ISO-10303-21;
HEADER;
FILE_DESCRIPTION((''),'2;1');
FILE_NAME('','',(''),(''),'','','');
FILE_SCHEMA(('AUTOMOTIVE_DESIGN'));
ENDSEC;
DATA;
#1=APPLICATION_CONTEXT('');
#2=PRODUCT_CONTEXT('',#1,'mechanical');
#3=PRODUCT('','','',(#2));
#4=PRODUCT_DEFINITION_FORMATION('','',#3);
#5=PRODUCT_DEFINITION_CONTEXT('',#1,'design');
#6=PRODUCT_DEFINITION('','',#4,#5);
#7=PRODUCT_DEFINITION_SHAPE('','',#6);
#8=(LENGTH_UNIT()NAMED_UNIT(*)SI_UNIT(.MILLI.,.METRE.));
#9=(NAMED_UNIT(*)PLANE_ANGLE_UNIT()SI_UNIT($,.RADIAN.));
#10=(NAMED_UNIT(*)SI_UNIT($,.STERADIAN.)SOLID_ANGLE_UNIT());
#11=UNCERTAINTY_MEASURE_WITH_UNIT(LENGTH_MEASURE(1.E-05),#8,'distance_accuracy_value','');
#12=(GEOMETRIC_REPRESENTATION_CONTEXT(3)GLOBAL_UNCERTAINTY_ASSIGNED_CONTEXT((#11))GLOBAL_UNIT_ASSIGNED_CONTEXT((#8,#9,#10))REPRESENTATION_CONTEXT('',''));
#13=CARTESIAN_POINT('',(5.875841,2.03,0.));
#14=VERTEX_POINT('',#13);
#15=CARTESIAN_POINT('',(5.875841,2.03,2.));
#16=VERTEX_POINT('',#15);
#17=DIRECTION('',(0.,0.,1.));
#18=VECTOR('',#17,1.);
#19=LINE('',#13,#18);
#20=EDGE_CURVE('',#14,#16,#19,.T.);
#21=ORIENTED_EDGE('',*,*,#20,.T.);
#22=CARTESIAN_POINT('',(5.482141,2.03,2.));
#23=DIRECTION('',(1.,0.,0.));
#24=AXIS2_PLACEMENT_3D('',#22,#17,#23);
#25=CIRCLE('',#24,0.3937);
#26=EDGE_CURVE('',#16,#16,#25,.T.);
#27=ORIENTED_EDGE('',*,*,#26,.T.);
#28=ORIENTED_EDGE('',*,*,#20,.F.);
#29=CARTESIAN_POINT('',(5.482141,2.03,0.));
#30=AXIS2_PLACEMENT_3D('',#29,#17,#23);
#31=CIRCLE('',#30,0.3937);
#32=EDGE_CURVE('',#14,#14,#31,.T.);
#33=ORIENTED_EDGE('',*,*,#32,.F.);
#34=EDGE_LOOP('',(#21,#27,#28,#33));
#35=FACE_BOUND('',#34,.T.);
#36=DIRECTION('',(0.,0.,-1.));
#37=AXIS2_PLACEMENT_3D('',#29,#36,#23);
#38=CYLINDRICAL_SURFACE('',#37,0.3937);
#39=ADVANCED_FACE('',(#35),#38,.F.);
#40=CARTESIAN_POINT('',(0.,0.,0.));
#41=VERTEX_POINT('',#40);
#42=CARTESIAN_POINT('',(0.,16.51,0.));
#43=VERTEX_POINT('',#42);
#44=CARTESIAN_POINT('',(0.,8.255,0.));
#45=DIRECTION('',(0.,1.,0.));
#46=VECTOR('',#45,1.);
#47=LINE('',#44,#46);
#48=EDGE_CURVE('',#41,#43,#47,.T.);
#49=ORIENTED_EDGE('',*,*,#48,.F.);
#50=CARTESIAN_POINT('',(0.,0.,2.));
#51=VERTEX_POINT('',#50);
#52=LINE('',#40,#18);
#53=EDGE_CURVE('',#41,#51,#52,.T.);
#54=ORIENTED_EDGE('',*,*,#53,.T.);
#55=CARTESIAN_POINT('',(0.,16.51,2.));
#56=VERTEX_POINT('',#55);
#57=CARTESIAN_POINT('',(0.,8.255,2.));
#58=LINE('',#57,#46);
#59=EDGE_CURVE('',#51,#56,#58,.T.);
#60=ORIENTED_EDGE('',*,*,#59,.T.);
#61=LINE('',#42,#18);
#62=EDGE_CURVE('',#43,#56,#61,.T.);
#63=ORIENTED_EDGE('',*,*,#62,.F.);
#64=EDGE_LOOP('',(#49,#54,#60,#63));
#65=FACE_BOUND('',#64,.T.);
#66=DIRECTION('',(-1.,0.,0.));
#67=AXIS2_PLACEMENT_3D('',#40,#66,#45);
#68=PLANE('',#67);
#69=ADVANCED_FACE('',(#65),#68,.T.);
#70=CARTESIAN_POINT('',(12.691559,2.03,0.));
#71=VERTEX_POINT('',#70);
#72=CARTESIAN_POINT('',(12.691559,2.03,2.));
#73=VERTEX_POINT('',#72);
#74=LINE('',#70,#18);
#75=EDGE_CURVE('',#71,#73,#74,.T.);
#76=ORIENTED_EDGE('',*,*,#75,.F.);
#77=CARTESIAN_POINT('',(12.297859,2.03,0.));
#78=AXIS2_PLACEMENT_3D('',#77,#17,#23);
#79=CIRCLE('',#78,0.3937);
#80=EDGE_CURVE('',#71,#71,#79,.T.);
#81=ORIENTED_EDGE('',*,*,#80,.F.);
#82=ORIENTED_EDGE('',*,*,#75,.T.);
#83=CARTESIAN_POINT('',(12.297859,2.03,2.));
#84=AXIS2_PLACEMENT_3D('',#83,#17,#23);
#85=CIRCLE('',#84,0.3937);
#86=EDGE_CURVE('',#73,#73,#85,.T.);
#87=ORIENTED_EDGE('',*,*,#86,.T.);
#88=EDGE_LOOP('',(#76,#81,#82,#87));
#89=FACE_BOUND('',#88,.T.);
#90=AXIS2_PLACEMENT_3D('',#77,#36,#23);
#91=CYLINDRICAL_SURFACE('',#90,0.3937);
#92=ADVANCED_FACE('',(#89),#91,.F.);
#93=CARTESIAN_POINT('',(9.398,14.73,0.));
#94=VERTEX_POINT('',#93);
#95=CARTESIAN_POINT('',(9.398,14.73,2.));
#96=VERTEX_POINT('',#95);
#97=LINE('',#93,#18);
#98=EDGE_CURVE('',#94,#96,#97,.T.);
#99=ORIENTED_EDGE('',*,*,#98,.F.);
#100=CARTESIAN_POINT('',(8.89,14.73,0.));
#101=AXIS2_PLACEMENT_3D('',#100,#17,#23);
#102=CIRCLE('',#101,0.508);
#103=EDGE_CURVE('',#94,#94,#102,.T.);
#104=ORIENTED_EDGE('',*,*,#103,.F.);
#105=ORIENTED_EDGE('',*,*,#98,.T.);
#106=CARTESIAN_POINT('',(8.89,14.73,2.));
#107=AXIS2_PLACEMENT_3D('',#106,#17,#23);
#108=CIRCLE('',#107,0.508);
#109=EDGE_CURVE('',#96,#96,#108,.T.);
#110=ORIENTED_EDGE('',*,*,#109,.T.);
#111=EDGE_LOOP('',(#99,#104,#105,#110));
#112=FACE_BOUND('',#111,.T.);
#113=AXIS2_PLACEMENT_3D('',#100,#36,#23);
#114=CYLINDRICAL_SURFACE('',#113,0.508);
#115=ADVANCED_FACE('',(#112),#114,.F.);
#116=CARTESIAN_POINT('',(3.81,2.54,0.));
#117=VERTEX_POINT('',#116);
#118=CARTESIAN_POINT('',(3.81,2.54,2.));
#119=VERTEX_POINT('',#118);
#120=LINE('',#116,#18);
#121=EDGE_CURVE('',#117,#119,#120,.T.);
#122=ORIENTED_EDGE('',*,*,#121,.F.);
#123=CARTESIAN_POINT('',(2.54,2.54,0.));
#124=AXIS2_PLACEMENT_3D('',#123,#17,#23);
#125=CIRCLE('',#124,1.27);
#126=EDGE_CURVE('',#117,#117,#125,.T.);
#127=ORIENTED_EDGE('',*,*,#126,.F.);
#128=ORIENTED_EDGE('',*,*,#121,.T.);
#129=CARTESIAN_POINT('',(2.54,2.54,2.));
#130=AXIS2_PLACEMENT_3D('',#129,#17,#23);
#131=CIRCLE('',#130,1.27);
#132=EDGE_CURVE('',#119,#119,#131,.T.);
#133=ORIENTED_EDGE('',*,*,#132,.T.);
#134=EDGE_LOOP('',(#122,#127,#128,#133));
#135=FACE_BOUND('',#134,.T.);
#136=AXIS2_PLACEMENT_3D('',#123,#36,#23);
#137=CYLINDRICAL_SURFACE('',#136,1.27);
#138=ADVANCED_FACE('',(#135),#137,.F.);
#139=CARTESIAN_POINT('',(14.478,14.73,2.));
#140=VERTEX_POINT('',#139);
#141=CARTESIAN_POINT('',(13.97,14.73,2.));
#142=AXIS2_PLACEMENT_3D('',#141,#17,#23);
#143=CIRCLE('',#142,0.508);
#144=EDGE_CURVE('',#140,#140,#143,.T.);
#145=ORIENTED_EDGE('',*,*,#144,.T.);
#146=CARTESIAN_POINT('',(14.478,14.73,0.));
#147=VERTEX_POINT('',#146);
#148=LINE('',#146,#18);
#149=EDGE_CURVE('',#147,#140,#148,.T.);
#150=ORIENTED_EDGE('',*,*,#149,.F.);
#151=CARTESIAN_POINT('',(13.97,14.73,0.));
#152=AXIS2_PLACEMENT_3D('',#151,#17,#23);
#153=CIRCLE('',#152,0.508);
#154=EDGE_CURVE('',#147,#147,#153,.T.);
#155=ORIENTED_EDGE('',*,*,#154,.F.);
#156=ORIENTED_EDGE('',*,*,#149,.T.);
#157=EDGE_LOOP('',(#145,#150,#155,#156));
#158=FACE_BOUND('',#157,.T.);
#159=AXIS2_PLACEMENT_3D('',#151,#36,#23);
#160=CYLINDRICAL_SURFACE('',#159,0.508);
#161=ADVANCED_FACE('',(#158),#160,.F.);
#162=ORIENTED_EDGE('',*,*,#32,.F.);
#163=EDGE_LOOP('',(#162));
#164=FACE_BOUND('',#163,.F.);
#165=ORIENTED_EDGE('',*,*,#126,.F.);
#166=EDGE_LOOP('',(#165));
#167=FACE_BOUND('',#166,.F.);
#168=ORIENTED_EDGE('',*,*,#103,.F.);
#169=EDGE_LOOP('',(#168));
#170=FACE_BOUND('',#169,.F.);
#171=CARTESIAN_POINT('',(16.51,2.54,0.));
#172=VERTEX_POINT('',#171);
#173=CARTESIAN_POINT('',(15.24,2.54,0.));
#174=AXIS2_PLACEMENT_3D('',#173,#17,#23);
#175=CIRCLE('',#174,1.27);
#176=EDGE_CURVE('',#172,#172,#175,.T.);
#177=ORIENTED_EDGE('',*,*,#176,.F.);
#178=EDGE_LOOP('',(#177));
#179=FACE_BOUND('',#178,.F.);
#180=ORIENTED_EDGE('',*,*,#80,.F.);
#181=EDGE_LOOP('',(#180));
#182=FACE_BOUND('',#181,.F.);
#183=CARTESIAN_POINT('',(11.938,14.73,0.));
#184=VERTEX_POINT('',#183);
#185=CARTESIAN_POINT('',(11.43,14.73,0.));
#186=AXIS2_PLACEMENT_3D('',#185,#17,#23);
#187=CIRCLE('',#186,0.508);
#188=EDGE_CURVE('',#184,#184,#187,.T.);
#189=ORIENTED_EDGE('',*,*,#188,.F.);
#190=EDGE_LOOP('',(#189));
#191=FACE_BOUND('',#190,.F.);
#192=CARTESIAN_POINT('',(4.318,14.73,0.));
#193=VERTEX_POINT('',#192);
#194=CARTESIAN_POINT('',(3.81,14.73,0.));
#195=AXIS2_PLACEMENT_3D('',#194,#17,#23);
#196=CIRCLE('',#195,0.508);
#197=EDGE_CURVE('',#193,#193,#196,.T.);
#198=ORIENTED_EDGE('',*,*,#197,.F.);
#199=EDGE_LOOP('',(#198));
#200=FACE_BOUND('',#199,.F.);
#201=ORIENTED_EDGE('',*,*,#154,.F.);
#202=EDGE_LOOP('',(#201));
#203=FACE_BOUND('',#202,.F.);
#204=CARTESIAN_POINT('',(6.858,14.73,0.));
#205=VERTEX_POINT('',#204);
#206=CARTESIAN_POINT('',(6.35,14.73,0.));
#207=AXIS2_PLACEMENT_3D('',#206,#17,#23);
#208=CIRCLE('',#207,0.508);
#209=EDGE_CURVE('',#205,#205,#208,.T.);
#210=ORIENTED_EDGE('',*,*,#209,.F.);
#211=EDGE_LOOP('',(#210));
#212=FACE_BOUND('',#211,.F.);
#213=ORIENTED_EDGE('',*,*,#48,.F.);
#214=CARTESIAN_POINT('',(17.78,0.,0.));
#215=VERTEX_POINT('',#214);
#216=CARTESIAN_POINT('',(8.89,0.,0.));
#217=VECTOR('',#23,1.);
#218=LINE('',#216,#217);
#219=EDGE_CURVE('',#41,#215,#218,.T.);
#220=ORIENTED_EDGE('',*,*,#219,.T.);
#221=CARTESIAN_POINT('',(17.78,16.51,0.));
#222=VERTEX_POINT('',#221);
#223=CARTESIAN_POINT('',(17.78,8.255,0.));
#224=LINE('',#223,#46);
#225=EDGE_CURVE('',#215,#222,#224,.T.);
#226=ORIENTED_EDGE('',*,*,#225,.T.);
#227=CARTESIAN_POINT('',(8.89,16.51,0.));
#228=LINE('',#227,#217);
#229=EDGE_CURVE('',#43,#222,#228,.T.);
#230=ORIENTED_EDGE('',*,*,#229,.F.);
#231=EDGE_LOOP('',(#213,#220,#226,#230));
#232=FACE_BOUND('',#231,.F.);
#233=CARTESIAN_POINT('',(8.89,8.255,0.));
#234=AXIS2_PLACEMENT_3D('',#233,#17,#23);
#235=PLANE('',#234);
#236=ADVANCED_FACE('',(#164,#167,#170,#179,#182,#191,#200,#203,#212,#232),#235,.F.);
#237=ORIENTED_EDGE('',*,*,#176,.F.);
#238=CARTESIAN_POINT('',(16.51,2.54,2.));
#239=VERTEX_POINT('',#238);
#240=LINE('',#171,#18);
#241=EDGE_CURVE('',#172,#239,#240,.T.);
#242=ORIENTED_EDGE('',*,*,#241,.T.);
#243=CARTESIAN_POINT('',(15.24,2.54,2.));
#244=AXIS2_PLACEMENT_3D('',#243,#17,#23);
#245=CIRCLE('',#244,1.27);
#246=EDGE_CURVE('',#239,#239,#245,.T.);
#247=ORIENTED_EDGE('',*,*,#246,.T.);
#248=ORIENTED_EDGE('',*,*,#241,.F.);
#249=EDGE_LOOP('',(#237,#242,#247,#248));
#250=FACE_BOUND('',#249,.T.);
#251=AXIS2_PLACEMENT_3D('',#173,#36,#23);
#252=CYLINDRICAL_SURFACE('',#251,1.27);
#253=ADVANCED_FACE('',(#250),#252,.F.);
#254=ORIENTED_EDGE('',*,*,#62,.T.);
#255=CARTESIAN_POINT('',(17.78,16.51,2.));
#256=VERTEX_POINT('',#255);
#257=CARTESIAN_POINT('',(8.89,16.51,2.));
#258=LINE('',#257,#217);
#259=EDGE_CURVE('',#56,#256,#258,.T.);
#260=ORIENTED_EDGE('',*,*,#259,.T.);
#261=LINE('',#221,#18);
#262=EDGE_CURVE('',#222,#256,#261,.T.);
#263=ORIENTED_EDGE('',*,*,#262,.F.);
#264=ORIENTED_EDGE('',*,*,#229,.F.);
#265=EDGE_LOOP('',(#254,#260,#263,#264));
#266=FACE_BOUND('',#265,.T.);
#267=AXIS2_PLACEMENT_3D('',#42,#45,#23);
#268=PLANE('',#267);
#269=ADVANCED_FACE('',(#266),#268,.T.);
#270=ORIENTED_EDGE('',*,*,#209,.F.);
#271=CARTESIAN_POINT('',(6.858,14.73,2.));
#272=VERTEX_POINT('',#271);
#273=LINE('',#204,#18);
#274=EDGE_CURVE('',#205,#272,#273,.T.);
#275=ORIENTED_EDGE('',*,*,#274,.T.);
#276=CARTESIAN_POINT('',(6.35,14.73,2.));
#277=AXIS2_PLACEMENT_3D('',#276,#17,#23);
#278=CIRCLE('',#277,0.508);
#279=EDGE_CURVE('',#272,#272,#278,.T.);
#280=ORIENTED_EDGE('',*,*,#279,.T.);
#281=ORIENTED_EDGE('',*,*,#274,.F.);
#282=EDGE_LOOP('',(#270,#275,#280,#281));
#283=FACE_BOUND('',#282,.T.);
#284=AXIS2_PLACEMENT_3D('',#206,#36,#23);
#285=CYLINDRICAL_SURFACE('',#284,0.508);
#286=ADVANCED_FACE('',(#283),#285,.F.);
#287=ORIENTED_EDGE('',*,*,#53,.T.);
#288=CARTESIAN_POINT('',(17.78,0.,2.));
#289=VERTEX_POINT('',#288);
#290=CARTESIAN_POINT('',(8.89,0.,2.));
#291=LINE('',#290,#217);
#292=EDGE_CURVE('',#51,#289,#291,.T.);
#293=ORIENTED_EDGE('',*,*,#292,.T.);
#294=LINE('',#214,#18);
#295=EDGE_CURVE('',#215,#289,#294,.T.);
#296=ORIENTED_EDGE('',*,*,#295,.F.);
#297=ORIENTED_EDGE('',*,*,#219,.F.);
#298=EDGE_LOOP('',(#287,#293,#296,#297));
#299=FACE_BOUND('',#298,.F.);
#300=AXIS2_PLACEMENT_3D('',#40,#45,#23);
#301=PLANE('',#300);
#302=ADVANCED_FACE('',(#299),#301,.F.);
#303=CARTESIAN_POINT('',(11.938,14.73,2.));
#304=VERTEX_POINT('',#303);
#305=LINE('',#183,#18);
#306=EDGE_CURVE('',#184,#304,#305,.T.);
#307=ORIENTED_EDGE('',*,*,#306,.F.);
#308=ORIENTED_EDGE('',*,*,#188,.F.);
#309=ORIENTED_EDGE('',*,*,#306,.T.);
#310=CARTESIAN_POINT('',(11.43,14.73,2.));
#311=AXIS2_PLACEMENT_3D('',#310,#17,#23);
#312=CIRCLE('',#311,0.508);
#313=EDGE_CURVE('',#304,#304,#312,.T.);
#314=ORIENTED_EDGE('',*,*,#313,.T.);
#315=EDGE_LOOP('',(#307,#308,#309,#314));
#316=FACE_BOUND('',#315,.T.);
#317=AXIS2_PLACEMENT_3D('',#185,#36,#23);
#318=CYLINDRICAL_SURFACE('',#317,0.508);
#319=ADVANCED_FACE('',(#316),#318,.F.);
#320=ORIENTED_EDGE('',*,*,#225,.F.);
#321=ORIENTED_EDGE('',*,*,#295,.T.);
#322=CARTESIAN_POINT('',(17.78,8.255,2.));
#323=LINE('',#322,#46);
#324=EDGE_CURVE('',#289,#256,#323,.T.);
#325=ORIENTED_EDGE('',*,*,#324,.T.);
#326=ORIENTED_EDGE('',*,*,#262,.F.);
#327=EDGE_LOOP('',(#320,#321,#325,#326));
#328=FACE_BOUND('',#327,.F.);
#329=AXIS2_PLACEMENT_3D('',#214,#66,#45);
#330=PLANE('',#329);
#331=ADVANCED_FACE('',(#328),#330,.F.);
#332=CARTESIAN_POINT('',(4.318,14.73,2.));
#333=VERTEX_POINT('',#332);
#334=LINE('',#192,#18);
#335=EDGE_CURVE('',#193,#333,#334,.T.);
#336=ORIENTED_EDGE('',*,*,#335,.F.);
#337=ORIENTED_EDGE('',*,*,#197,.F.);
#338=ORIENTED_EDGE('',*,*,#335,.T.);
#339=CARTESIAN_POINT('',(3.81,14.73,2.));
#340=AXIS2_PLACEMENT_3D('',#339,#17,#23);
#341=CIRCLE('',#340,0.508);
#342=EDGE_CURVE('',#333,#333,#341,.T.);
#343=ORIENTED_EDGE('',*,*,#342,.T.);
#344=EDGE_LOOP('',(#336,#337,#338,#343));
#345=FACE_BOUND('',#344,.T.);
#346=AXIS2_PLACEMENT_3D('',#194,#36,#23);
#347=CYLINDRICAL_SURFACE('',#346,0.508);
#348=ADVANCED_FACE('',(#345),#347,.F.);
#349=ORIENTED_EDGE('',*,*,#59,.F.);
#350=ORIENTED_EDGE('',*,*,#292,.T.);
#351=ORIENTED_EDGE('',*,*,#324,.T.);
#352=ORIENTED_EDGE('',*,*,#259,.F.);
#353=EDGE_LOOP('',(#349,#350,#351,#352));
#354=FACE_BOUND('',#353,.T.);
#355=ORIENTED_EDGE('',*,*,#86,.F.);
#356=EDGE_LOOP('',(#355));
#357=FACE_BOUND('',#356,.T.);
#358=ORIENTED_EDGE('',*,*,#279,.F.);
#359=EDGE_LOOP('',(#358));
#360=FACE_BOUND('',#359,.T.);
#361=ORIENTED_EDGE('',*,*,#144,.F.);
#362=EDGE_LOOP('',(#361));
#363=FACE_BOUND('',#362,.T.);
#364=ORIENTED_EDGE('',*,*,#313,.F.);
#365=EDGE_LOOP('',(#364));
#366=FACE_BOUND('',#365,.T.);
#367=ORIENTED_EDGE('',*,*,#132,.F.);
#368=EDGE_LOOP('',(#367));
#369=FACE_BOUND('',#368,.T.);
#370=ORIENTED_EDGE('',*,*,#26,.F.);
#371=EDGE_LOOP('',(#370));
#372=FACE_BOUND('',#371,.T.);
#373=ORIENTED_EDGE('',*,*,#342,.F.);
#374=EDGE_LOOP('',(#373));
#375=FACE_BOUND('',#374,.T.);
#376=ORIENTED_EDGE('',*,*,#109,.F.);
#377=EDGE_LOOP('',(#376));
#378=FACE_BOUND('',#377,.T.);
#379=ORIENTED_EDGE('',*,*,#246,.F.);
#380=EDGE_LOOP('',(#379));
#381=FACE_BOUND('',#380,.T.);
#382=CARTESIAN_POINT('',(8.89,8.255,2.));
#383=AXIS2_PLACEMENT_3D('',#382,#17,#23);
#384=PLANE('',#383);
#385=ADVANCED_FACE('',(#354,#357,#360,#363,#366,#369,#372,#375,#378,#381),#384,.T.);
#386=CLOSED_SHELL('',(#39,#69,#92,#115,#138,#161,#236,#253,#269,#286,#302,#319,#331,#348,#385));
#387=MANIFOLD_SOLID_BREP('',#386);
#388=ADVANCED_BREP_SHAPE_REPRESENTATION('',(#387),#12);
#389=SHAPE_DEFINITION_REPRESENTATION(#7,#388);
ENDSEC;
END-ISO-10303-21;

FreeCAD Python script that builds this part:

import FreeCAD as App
import Part
import Sketcher
from FreeCAD import Vector
Q = App.Units.Quantity

doc = App.newDocument("Part")
body = doc.addObject("PartDesign::Body", "Body")

sketch1 = body.newObject("Sketcher::SketchObject", "Sketch")
sketch1.AttachmentSupport = (doc.getObject("XY_Plane"), [""])
sketch1.MapMode = "FlatFace"
sketch1.addGeometry([
    Part.LineSegment(Vector(0, 16.51, 0), Vector(0, 0, 0)),
    Part.LineSegment(Vector(0, 0, 0), Vector(17.78, 0, 0)),
    Part.LineSegment(Vector(17.78, 0, 0), Vector(17.78, 16.51, 0)),
    Part.LineSegment(Vector(17.78, 16.51, 0), Vector(0, 16.51, 0)),
    Part.Circle(Vector(2.54, 2.54, 0), Vector(0, 0, 1), 1.27),
    Part.Circle(Vector(5.482141, 2.03, 0), Vector(0, 0, 1), 0.3937),
    Part.Circle(Vector(12.297859, 2.03, 0), Vector(0, 0, 1), 0.3937),
    Part.Circle(Vector(15.24, 2.54, 0), Vector(0, 0, 1), 1.27),
    Part.Circle(Vector(3.81, 14.73, 0), Vector(0, 0, 1), 0.508),
    Part.Circle(Vector(6.35, 14.73, 0), Vector(0, 0, 1), 0.508),
    Part.Circle(Vector(8.89, 14.73, 0), Vector(0, 0, 1), 0.508),
    Part.Circle(Vector(11.43, 14.73, 0), Vector(0, 0, 1), 0.508),
    Part.Circle(Vector(13.97, 14.73, 0), Vector(0, 0, 1), 0.508),
], False)
sketch1.addConstraint([
    Sketcher.Constraint("Coincident", 0, 2, 1, 1),
    Sketcher.Constraint("Coincident", 1, 2, 2, 1),
    Sketcher.Constraint("Coincident", 2, 2, 3, 1),
    Sketcher.Constraint("Coincident", 3, 2, 0, 1),
    Sketcher.Constraint("Vertical", 0),
    Sketcher.Constraint("Horizontal", 1),
    Sketcher.Constraint("Vertical", 2),
    Sketcher.Constraint("Horizontal", 3),
    Sketcher.Constraint("Coincident", 0, 2, -1, 1),
    Sketcher.Constraint("Equal", 5, 6),
    Sketcher.Constraint("Equal", 4, 7),
    Sketcher.Constraint("Equal", 8, 9),
    Sketcher.Constraint("Equal", 9, 10),
    Sketcher.Constraint("Equal", 10, 11),
    Sketcher.Constraint("Equal", 11, 12),
    Sketcher.Constraint("Horizontal", 5, 3, 6, 3),
    Sketcher.Constraint("Horizontal", 4, 3, 7, 3),
    Sketcher.Constraint("Horizontal", 8, 3, 9, 3),
    Sketcher.Constraint("Horizontal", 9, 3, 10, 3),
    Sketcher.Constraint("Horizontal", 10, 3, 11, 3),
    Sketcher.Constraint("Horizontal", 11, 3, 12, 3),
    Sketcher.Constraint("Diameter", 4, Q("0.1 in")),
    Sketcher.Constraint("Diameter", 8, Q("0.04 in")),
    Sketcher.Constraint("Diameter", 5, Q("0.031 in")),
    Sketcher.Constraint("DistanceX", 1, 1, 1, 2, Q("0.7 in")),
    Sketcher.Constraint("DistanceY", 0, 2, 0, 1, Q("0.65 in")),
    Sketcher.Constraint("DistanceX", -1, 1, 4, 3, Q("0.1 in")),
    Sketcher.Constraint("DistanceY", -1, 1, 4, 3, Q("0.1 in")),
    Sketcher.Constraint("DistanceX", -1, 1, 7, 3, Q("0.6 in")),
    Sketcher.Constraint("DistanceY", 5, 3, 8, 3, Q("0.5 in")),
    Sketcher.Constraint("DistanceX", 8, 3, 9, 3, Q("0.1 in")),
    Sketcher.Constraint("DistanceX", 9, 3, 10, 3, Q("0.1 in")),
    Sketcher.Constraint("DistanceX", 10, 3, 11, 3, Q("0.1 in")),
    Sketcher.Constraint("DistanceX", 11, 3, 12, 3, Q("0.1 in")),
    Sketcher.Constraint("DistanceX", -1, 1, 8, 3, Q("0.15 in")),
    Sketcher.Constraint("DistanceY", -1, 1, 5, 3, Q("2.03 mm")),
    Sketcher.Constraint("DistanceX", -1, 1, 5, 3, Q("5.482141 mm")),
    Sketcher.Constraint("DistanceX", -1, 1, 6, 3, Q("12.297859 mm")),
])
pad1 = body.newObject("PartDesign::Pad", "Pad")
pad1.Profile = sketch1
pad1.Length = 2

doc.recompute()
